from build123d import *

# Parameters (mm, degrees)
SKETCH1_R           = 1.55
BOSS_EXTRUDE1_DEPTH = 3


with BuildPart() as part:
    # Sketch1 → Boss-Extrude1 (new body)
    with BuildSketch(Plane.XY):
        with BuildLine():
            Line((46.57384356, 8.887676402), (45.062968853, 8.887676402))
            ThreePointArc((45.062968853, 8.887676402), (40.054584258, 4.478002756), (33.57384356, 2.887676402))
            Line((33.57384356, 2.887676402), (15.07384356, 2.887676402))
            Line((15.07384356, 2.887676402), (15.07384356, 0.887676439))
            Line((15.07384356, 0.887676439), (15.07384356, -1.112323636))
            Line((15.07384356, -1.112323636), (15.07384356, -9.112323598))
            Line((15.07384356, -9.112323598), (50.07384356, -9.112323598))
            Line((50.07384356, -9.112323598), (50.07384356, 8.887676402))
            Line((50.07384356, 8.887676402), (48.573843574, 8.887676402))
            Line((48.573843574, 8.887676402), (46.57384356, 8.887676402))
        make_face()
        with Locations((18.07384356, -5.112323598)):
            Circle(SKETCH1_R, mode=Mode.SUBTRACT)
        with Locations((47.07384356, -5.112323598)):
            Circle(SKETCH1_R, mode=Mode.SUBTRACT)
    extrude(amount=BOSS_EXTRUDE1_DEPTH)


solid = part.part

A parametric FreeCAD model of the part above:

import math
import FreeCAD as App
import Part
import Sketcher
from FreeCAD import Vector
Q = App.Units.Quantity

doc = App.newDocument("Part")
params = doc.addObject("Spreadsheet::Sheet", "Params")
for row, (alias, value) in enumerate([
    ("sketch1_radius", "14 mm"),
    ("sketch1_diameter", "3.1 mm"),
    ("sketch1_width", "35 mm"),
    ("sketch1_height", "12 mm"),
    ("sketch1_height2", "18 mm"),
    ("pad1_length", "3 mm"),
], start=1):
    params.set(f"A{row}", alias)
    params.set(f"B{row}", "=" + value)
    params.setAlias(f"B{row}", alias)

body = doc.addObject("PartDesign::Body", "Body")

# Sketch on XY plane
sketch1 = body.newObject("Sketcher::SketchObject", "Sketch")
sketch1.AttachmentSupport = (doc.getObject("XY_Plane"), [""])
sketch1.MapMode = "FlatFace"
sketch1.addGeometry([
    Part.ArcOfCircle(Part.Circle(Vector(33.573844, 16.887676, 0), Vector(0, 0, 1), 14), math.radians(-90), math.radians(-34.849905)),  # 0
    Part.LineSegment(Vector(33.573844, 2.887676, 0), Vector(15.073844, 2.887676, 0)),  # 1
    Part.LineSegment(Vector(15.073844, 2.887676, 0), Vector(15.073844, -9.112324, 0)),  # 2
    Part.LineSegment(Vector(15.073844, -9.112324, 0), Vector(50.073844, -9.112324, 0)),  # 3
    Part.LineSegment(Vector(50.073844, -9.112324, 0), Vector(50.073844, 8.887676, 0)),  # 4
    Part.LineSegment(Vector(50.073844, 8.887676, 0), Vector(45.062969, 8.887676, 0)),  # 5
    Part.Circle(Vector(18.073844, -5.112324, 0), Vector(0, 0, 1), 1.55),  # 6
    Part.Circle(Vector(47.073844, -5.112324, 0), Vector(0, 0, 1), 1.55),  # 7
], False)
sketch1.addConstraint([
    Sketcher.Constraint("Tangent", 0, 1, 1, 1),
    Sketcher.Constraint("Coincident", 1, 2, 2, 1),
    Sketcher.Constraint("Coincident", 2, 2, 3, 1),
    Sketcher.Constraint("Coincident", 3, 2, 4, 1),
    Sketcher.Constraint("Coincident", 4, 2, 5, 1),
    Sketcher.Constraint("Coincident", 5, 2, 0, 2),
    Sketcher.Constraint("Horizontal", 1),
    Sketcher.Constraint("Vertical", 2),
    Sketcher.Constraint("Horizontal", 3),
    Sketcher.Constraint("Vertical", 4),
    Sketcher.Constraint("Horizontal", 5),
    Sketcher.Constraint("Equal", 6, 7),
    Sketcher.Constraint("Horizontal", 6, 3, 7, 3),
    Sketcher.Constraint("Radius", 0, Q("14 mm")),
    Sketcher.Constraint("Diameter", 6, Q("3.1 mm")),
    Sketcher.Constraint("DistanceX", 3, 1, 3, 2, Q("35 mm")),
    Sketcher.Constraint("DistanceY", 2, 2, 2, 1, Q("12 mm")),
    Sketcher.Constraint("DistanceY", 4, 1, 4, 2, Q("18 mm")),
    Sketcher.Constraint("DistanceX", 1, 2, 1, 1, Q("18.5 mm")),
    Sketcher.Constraint("DistanceY", 6, 3, 0, 3, Q("22 mm")),
    Sketcher.Constraint("DistanceX", 6, 3, 7, 3, Q("29 mm")),
    Sketcher.Constraint("DistanceX", 1, 2, 6, 3, Q("3 mm")),
    Sketcher.Constraint("DistanceX", -1, 1, 5, 2, Q("45.062969 mm")),
    Sketcher.Constraint("DistanceY", -1, 1, 0, 3, Q("16.887676 mm")),
])
sketch1.setExpression("Constraints[13]", "Params.sketch1_radius")
sketch1.setExpression("Constraints[14]", "Params.sketch1_diameter")
sketch1.setExpression("Constraints[15]", "Params.sketch1_width")
sketch1.setExpression("Constraints[16]", "Params.sketch1_height")
sketch1.setExpression("Constraints[17]", "Params.sketch1_height2")
pad1 = body.newObject("PartDesign::Pad", "Pad")
pad1.Profile = sketch1
pad1.setExpression("Length", "Params.pad1_length")

doc.recompute()
